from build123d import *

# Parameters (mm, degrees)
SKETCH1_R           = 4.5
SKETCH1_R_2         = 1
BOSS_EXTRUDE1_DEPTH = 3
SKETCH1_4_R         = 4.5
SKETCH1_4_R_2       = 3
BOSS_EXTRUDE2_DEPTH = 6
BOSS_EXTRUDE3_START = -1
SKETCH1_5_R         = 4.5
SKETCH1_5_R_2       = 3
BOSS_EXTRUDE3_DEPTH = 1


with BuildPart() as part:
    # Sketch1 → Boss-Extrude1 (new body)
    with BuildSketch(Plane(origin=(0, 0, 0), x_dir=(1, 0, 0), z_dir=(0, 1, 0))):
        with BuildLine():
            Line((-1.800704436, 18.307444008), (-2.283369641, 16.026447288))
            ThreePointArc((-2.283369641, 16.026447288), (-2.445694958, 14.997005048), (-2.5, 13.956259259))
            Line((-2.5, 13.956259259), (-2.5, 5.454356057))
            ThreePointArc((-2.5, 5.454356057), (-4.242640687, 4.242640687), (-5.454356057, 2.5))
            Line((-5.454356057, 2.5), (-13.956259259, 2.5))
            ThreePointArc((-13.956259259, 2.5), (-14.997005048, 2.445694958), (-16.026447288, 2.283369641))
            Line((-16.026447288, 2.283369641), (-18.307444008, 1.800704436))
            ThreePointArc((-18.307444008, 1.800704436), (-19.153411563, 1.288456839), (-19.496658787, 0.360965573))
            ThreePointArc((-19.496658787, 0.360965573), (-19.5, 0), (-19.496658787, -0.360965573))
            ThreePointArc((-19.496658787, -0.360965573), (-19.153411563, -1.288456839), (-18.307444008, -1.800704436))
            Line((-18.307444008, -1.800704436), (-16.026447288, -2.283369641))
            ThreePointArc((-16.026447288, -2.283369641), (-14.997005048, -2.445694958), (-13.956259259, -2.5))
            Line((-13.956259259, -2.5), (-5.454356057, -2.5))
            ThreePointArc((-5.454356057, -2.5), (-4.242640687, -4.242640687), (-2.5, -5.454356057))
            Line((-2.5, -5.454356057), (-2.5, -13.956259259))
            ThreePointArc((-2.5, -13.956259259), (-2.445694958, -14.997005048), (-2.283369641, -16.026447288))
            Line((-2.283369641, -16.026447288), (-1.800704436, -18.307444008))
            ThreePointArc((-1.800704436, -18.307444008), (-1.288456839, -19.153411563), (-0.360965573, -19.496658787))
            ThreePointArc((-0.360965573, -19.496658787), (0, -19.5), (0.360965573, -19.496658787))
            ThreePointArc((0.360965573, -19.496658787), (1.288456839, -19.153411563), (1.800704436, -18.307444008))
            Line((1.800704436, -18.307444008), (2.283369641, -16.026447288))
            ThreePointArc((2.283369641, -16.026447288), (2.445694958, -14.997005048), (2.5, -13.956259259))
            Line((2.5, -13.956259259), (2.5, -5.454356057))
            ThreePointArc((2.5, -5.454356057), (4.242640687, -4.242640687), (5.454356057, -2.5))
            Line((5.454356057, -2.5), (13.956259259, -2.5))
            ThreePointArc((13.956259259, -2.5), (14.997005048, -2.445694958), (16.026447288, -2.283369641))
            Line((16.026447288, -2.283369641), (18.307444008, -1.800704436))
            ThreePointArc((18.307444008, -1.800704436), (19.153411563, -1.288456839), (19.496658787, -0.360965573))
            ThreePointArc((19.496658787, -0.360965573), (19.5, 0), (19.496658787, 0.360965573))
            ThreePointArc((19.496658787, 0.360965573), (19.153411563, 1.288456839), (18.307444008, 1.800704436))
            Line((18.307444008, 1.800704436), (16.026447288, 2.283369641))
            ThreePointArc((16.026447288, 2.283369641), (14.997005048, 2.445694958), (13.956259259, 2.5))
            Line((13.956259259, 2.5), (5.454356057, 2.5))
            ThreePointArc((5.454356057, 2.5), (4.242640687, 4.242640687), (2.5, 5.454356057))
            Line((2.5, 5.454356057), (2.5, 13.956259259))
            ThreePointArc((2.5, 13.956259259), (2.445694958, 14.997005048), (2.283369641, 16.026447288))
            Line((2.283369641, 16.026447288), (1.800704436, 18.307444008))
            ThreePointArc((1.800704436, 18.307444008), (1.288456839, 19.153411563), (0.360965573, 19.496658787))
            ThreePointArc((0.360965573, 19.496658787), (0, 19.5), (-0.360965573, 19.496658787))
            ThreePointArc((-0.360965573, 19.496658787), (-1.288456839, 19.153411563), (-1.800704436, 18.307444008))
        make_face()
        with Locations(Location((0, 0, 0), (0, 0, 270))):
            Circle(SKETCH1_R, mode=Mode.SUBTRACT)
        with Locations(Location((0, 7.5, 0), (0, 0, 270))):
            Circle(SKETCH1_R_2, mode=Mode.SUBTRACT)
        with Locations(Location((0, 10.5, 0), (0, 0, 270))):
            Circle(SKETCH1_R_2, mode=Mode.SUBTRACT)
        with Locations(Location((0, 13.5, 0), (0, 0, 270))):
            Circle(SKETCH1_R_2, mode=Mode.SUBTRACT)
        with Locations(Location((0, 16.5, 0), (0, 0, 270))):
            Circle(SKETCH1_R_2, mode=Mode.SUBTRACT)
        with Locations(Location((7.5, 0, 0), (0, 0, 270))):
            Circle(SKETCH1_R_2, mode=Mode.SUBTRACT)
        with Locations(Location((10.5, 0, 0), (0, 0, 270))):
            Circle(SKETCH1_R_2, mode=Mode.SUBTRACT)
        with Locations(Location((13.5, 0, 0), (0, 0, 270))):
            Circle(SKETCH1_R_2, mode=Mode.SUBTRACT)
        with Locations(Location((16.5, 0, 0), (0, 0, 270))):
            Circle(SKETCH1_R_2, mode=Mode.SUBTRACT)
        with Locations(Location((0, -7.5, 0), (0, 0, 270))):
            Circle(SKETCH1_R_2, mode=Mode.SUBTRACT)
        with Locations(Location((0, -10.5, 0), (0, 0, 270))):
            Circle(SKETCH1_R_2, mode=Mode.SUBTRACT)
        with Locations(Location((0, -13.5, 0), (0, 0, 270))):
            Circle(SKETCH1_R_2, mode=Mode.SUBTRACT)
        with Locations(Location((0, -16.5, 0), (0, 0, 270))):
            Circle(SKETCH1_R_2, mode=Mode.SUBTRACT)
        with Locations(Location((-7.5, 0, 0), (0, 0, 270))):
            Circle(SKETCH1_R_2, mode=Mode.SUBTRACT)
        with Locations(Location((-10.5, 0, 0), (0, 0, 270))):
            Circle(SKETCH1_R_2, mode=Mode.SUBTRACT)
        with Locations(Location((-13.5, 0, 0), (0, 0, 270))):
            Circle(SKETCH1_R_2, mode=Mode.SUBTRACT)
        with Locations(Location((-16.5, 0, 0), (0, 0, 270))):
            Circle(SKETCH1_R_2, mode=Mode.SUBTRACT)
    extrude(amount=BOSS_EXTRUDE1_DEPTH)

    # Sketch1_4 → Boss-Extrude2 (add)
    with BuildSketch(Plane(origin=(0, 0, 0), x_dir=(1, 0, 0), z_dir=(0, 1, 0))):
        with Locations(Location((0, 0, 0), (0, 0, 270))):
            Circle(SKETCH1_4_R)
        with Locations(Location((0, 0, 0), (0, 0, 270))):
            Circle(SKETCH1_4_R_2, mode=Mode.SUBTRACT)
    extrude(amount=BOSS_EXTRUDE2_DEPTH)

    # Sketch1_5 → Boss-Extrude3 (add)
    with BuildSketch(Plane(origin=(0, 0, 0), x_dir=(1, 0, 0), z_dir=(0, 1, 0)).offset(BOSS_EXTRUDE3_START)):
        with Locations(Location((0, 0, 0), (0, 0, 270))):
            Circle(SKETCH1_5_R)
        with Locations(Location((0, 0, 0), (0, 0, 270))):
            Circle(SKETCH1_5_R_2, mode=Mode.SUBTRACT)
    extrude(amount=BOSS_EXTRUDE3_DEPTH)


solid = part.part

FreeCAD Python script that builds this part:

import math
import FreeCAD as App
import Part
import Sketcher

V = App.Vector

doc = App.newDocument("Part")
params = doc.addObject("Spreadsheet::Sheet", "Params")
for row, (alias, value) in enumerate([
    ("sketch1_diameter", "2 mm"),
    ("sketch1_diameter2", "9 mm"),
    ("sketch1_radius", "10 mm"),
    ("sketch1_radius2", "6 mm"),
    ("sketch1_radius3", "1.5 mm"),
    ("pad1_length", "3 mm"),
    ("sketch2_diameter", "9 mm"),
    ("sketch2_diameter2", "6 mm"),
    ("pad2_length", "6 mm"),
    ("sketch3_diameter", "9 mm"),
    ("sketch3_diameter2", "6 mm"),
    ("pad3_length", "1 mm"),
], start=1):
    params.set(f"A{row}", alias)
    params.set(f"B{row}", "=" + value)
    params.setAlias(f"B{row}", alias)

body = doc.addObject("PartDesign::Body", "Body")

# Sketch on XZ plane
sketch1 = body.newObject("Sketcher::SketchObject", "Sketch")
sketch1.AttachmentSupport = (doc.getObject("XZ_Plane"), [""])
sketch1.MapMode = "FlatFace"
sketch1.addGeometry([
    Part.LineSegment(V(-1.800704, -18.307444, 0), V(-2.28337, -16.026447, 0)),  # 0
    Part.ArcOfCircle(Part.Circle(V(7.5, -13.956259, 0), V(0, 0, 1), 10), math.radians(-180), math.radians(-168.052297)),  # 1
    Part.LineSegment(V(-2.5, -13.956259, 0), V(-2.5, -5.454356, 0)),  # 2
    Part.ArcOfCircle(Part.Circle(V(0, 0, 0), V(0, 0, 1), 6), math.radians(-155.375682), math.radians(-114.624318)),  # 3
    Part.LineSegment(V(-5.454356, -2.5, 0), V(-13.956259, -2.5, 0)),  # 4
    Part.ArcOfCircle(Part.Circle(V(-13.956259, 7.5, 0), V(0, 0, 1), 10), math.radians(-101.947703), math.radians(-90)),  # 5
    Part.LineSegment(V(-16.026447, -2.28337, 0), V(-18.307444, -1.800704, 0)),  # 6
    Part.ArcOfCircle(Part.Circle(V(-17.996916, -0.333199, 0), V(0, 0, 1), 1.5), math.radians(-178.939334), math.radians(-101.947703)),  # 7
    Part.ArcOfCircle(Part.Circle(V(0, 0, 0), V(0, 0, 1), 19.5), math.radians(178.939334), math.radians(181.060666)),  # 8
    Part.ArcOfCircle(Part.Circle(V(-17.996916, 0.333199, 0), V(0, 0, 1), 1.5), math.radians(101.947703), math.radians(178.939334)),  # 9
    Part.LineSegment(V(-18.307444, 1.800704, 0), V(-16.026447, 2.28337, 0)),  # 10
    Part.ArcOfCircle(Part.Circle(V(-13.956259, -7.5, 0), V(0, 0, 1), 10), math.radians(90), math.radians(101.947703)),  # 11
    Part.LineSegment(V(-13.956259, 2.5, 0), V(-5.454356, 2.5, 0)),  # 12
    Part.ArcOfCircle(Part.Circle(V(0, 0, 0), V(0, 0, 1), 6), math.radians(114.624318), math.radians(155.375682)),  # 13
    Part.LineSegment(V(-2.5, 5.454356, 0), V(-2.5, 13.956259, 0)),  # 14
    Part.ArcOfCircle(Part.Circle(V(7.5, 13.956259, 0), V(0, 0, 1), 10), math.radians(168.052297), math.radians(180)),  # 15
    Part.LineSegment(V(-2.28337, 16.026447, 0), V(-1.800704, 18.307444, 0)),  # 16
    Part.ArcOfCircle(Part.Circle(V(-0.333199, 17.996916, 0), V(0, 0, 1), 1.5), math.radians(91.060666), math.radians(168.052297)),  # 17
    Part.ArcOfCircle(Part.Circle(V(0, 0, 0), V(0, 0, 1), 19.5), math.radians(88.939334), math.radians(91.060666)),  # 18
    Part.ArcOfCircle(Part.Circle(V(0.333199, 17.996916, 0), V(0, 0, 1), 1.5), math.radians(11.947703), math.radians(88.939334)),  # 19
    Part.LineSegment(V(1.800704, 18.307444, 0), V(2.28337, 16.026447, 0)),  # 20
    Part.ArcOfCircle(Part.Circle(V(-7.5, 13.956259, 0), V(0, 0, 1), 10), math.radians(0), math.radians(11.947703)),  # 21
    Part.LineSegment(V(2.5, 13.956259, 0), V(2.5, 5.454356, 0)),  # 22
    Part.ArcOfCircle(Part.Circle(V(0, 0, 0), V(0, 0, 1), 6), math.radians(24.624318), math.radians(65.375682)),  # 23
    Part.LineSegment(V(5.454356, 2.5, 0), V(13.956259, 2.5, 0)),  # 24
    Part.ArcOfCircle(Part.Circle(V(13.956259, -7.5, 0), V(0, 0, 1), 10), math.radians(78.052297), math.radians(90)),  # 25
    Part.LineSegment(V(16.026447, 2.28337, 0), V(18.307444, 1.800704, 0)),  # 26
    Part.ArcOfCircle(Part.Circle(V(17.996916, 0.333199, 0), V(0, 0, 1), 1.5), math.radians(1.060666), math.radians(78.052297)),  # 27
    Part.ArcOfCircle(Part.Circle(V(0, 0, 0), V(0, 0, 1), 19.5), math.radians(-1.060666), math.radians(1.060666)),  # 28
    Part.ArcOfCircle(Part.Circle(V(17.996916, -0.333199, 0), V(0, 0, 1), 1.5), math.radians(-78.052297), math.radians(-1.060666)),  # 29
    Part.LineSegment(V(18.307444, -1.800704, 0), V(16.026447, -2.28337, 0)),  # 30
    Part.ArcOfCircle(Part.Circle(V(13.956259, 7.5, 0), V(0, 0, 1), 10), math.radians(-90), math.radians(-78.052297)),  # 31
    Part.LineSegment(V(13.956259, -2.5, 0), V(5.454356, -2.5, 0)),  # 32
    Part.ArcOfCircle(Part.Circle(V(0, 0, 0), V(0, 0, 1), 6), math.radians(-65.375682), math.radians(-24.624318)),  # 33
    Part.LineSegment(V(2.5, -5.454356, 0), V(2.5, -13.956259, 0)),  # 34
    Part.ArcOfCircle(Part.Circle(V(-7.5, -13.956259, 0), V(0, 0, 1), 10), math.radians(-11.947703), math.radians(0)),  # 35
    Part.LineSegment(V(2.28337, -16.026447, 0), V(1.800704, -18.307444, 0)),  # 36
    Part.ArcOfCircle(Part.Circle(V(0.333199, -17.996916, 0), V(0, 0, 1), 1.5), math.radians(-88.939334), math.radians(-11.947703)),  # 37
    Part.ArcOfCircle(Part.Circle(V(0, 0, 0), V(0, 0, 1), 19.5), math.radians(-91.060666), math.radians(-88.939334)),  # 38
    Part.ArcOfCircle(Part.Circle(V(-0.333199, -17.996916, 0), V(0, 0, 1), 1.5), math.radians(-168.052297), math.radians(-91.060666)),  # 39
    Part.Circle(V(0, 16.5, 0), V(0, 0, 1), 1),  # 40
    Part.Circle(V(0, 13.5, 0), V(0, 0, 1), 1),  # 41
    Part.Circle(V(0, 10.5, 0), V(0, 0, 1), 1),  # 42
    Part.Circle(V(0, 7.5, 0), V(0, 0, 1), 1),  # 43
    Part.Circle(V(-16.5, 0, 0), V(0, 0, 1), 1),  # 44
    Part.Circle(V(-13.5, 0, 0), V(0, 0, 1), 1),  # 45
    Part.Circle(V(-10.5, 0, 0), V(0, 0, 1), 1),  # 46
    Part.Circle(V(-7.5, 0, 0), V(0, 0, 1), 1),  # 47
    Part.Circle(V(0, 0, 0), V(0, 0, 1), 4.5),  # 48
    Part.Circle(V(7.5, 0, 0), V(0, 0, 1), 1),  # 49
    Part.Circle(V(0, -7.5, 0), V(0, 0, 1), 1),  # 50
    Part.Circle(V(10.5, 0, 0), V(0, 0, 1), 1),  # 51
    Part.Circle(V(13.5, 0, 0), V(0, 0, 1), 1),  # 52
    Part.Circle(V(16.5, 0, 0), V(0, 0, 1), 1),  # 53
    Part.Circle(V(0, -10.5, 0), V(0, 0, 1), 1),  # 54
    Part.Circle(V(0, -13.5, 0), V(0, 0, 1), 1),  # 55
    Part.Circle(V(0, -16.5, 0), V(0, 0, 1), 1),  # 56
], False)
sketch1.addConstraint([
    Sketcher.Constraint("Tangent", 0, 2, 1, 2),
    Sketcher.Constraint("Tangent", 1, 1, 2, 1),
    Sketcher.Constraint("Coincident", 2, 2, 3, 2),
    Sketcher.Constraint("Coincident", 3, 1, 4, 1),
    Sketcher.Constraint("Tangent", 4, 2, 5, 2),
    Sketcher.Constraint("Tangent", 5, 1, 6, 1),
    Sketcher.Constraint("Tangent", 6, 2, 7, 2),
    Sketcher.Constraint("Tangent", 7, 1, 8, 2),
    Sketcher.Constraint("Tangent", 8, 1, 9, 2),
    Sketcher.Constraint("Tangent", 9, 1, 10, 1),
    Sketcher.Constraint("Tangent", 10, 2, 11, 2),
    Sketcher.Constraint("Tangent", 11, 1, 12, 1),
    Sketcher.Constraint("Coincident", 12, 2, 13, 2),
    Sketcher.Constraint("Coincident", 13, 1, 14, 1),
    Sketcher.Constraint("Tangent", 14, 2, 15, 2),
    Sketcher.Constraint("Tangent", 15, 1, 16, 1),
    Sketcher.Constraint("Tangent", 16, 2, 17, 2),
    Sketcher.Constraint("Tangent", 17, 1, 18, 2),
    Sketcher.Constraint("Tangent", 18, 1, 19, 2),
    Sketcher.Constraint("Tangent", 19, 1, 20, 1),
    Sketcher.Constraint("Tangent", 20, 2, 21, 2),
    Sketcher.Constraint("Tangent", 21, 1, 22, 1),
    Sketcher.Constraint("Coincident", 22, 2, 23, 2),
    Sketcher.Constraint("Coincident", 23, 1, 24, 1),
    Sketcher.Constraint("Tangent", 24, 2, 25, 2),
    Sketcher.Constraint("Tangent", 25, 1, 26, 1),
    Sketcher.Constraint("Tangent", 26, 2, 27, 2),
    Sketcher.Constraint("Tangent", 27, 1, 28, 2),
    Sketcher.Constraint("Tangent", 28, 1, 29, 2),
    Sketcher.Constraint("Tangent", 29, 1, 30, 1),
    Sketcher.Constraint("Tangent", 30, 2, 31, 2),
    Sketcher.Constraint("Tangent", 31, 1, 32, 1),
    Sketcher.Constraint("Coincident", 32, 2, 33, 2),
    Sketcher.Constraint("Coincident", 33, 1, 34, 1),
    Sketcher.Constraint("Tangent", 34, 2, 35, 2),
    Sketcher.Constraint("Tangent", 35, 1, 36, 1),
    Sketcher.Constraint("Tangent", 36, 2, 37, 2),
    Sketcher.Constraint("Tangent", 37, 1, 38, 2),
    Sketcher.Constraint("Tangent", 38, 1, 39, 2),
    Sketcher.Constraint("Tangent", 39, 1, 0, 1),
    Sketcher.Constraint("Vertical", 2),
    Sketcher.Constraint("Horizontal", 4),
    Sketcher.Constraint("Horizontal", 12),
    Sketcher.Constraint("Vertical", 14),
    Sketcher.Constraint("Vertical", 22),
    Sketcher.Constraint("Horizontal", 24),
    Sketcher.Constraint("Horizontal", 32),
    Sketcher.Constraint("Vertical", 34),
    Sketcher.Constraint("Coincident", 3, 3, -1, 1),
    Sketcher.Constraint("Coincident", 8, 3, -1, 1),
    Sketcher.Constraint("Coincident", 13, 3, -1, 1),
    Sketcher.Constraint("Coincident", 18, 3, -1, 1),
    Sketcher.Constraint("Coincident", 23, 3, -1, 1),
    Sketcher.Constraint("Coincident", 28, 3, -1, 1),
    Sketcher.Constraint("Coincident", 33, 3, -1, 1),
    Sketcher.Constraint("Coincident", 38, 3, -1, 1),
    Sketcher.Constraint("Coincident", 48, 3, -1, 1),
    Sketcher.Constraint("Equal", 1, 5),
    Sketcher.Constraint("Equal", 7, 9),
    Sketcher.Constraint("Equal", 5, 11),
    Sketcher.Constraint("Equal", 3, 13),
    Sketcher.Constraint("Equal", 11, 15),
    Sketcher.Constraint("Equal", 9, 17),
    Sketcher.Constraint("Equal", 8, 18),
    Sketcher.Constraint("Equal", 17, 19),
    Sketcher.Constraint("Equal", 15, 21),
    Sketcher.Constraint("Equal", 13, 23),
    Sketcher.Constraint("Equal", 21, 25),
    Sketcher.Constraint("Equal", 19, 27),
    Sketcher.Constraint("Equal", 18, 28),
    Sketcher.Constraint("Equal", 27, 29),
    Sketcher.Constraint("Equal", 25, 31),
    Sketcher.Constraint("Equal", 23, 33),
    Sketcher.Constraint("Equal", 31, 35),
    Sketcher.Constraint("Equal", 29, 37),
    Sketcher.Constraint("Equal", 28, 38),
    Sketcher.Constraint("Equal", 37, 39),
    Sketcher.Constraint("Equal", 40, 41),
    Sketcher.Constraint("Equal", 41, 42),
    Sketcher.Constraint("Equal", 42, 43),
    Sketcher.Constraint("Equal", 43, 44),
    Sketcher.Constraint("Equal", 44, 45),
    Sketcher.Constraint("Equal", 45, 46),
    Sketcher.Constraint("Equal", 46, 47),
    Sketcher.Constraint("Equal", 47, 49),
    Sketcher.Constraint("Equal", 49, 50),
    Sketcher.Constraint("Equal", 50, 51),
    Sketcher.Constraint("Equal", 51, 52),
    Sketcher.Constraint("Equal", 52, 53),
    Sketcher.Constraint("Equal", 53, 54),
    Sketcher.Constraint("Equal", 54, 55),
    Sketcher.Constraint("Equal", 55, 56),
    Sketcher.Constraint("Symmetric", 1, 3, 21, 3, -1, 1),
    Sketcher.Constraint("Symmetric", 5, 3, 25, 3, -1, 1),
    Sketcher.Constraint("Symmetric", 11, 3, 31, 3, -1, 1),
    Sketcher.Constraint("Symmetric", 15, 3, 35, 3, -1, 1),
    Sketcher.Constraint("Symmetric", 47, 3, 49, 3, -1, 1),
    Sketcher.Constraint("Symmetric", 43, 3, 50, 3, -1, 1),
    Sketcher.Constraint("Symmetric", 46, 3, 51, 3, -1, 1),
    Sketcher.Constraint("Symmetric", 45, 3, 52, 3, -1, 1),
    Sketcher.Constraint("Symmetric", 44, 3, 53, 3, -1, 1),
    Sketcher.Constraint("Symmetric", 42, 3, 54, 3, -1, 1),
    Sketcher.Constraint("Symmetric", 41, 3, 55, 3, -1, 1),
    Sketcher.Constraint("Symmetric", 40, 3, 56, 3, -1, 1),
    Sketcher.Constraint("Symmetric", 15, 3, 21, 3, -2),
    Sketcher.Constraint("Symmetric", 11, 3, 25, 3, -2),
    Sketcher.Constraint("PointOnObject", 40, 3, -2),
    Sketcher.Constraint("PointOnObject", 41, 3, -2),
    Sketcher.Constraint("PointOnObject", 42, 3, -2),
    Sketcher.Constraint("PointOnObject", 43, 3, -2),
    Sketcher.Constraint("PointOnObject", 44, 3, -1),
    Sketcher.Constraint("PointOnObject", 45, 3, -1),
    Sketcher.Constraint("PointOnObject", 46, 3, -1),
    Sketcher.Constraint("PointOnObject", 47, 3, -1),
    Sketcher.Constraint("Perpendicular", 0, 10),
    Sketcher.Constraint("Perpendicular", 6, 16),
    Sketcher.Constraint("Perpendicular", 10, 20),
    Sketcher.Constraint("Perpendicular", 16, 26),
    Sketcher.Constraint("Perpendicular", 20, 30),
    Sketcher.Constraint("Perpendicular", 26, 36),
    Sketcher.Constraint("Horizontal", 17, 3, 19, 3),
    Sketcher.Constraint("Horizontal", 31, 3, 43, 3),
    Sketcher.Constraint("Vertical", 35, 3, 47, 3),
    Sketcher.Constraint("Equal", 32, 2),
    Sketcher.Constraint("Equal", 0, 6),
    Sketcher.Constraint("Diameter", 40, 2.0),
    Sketcher.Constraint("Diameter", 48, 9.0),
    Sketcher.Constraint("Radius", 1, 10.0),
    Sketcher.Constraint("Radius", 3, 6.0),
    Sketcher.Constraint("Radius", 7, 1.5),
    Sketcher.Constraint("Radius", 8, 19.5),
    Sketcher.Constraint("DistanceX", -1, 1, 1, 3, 7.5),
    Sketcher.Constraint("DistanceY", -1, 1, 40, 3, 16.5),
    Sketcher.Constraint("DistanceY", -1, 1, 41, 3, 13.5),
    Sketcher.Constraint("DistanceY", -1, 1, 42, 3, 10.5),
    Sketcher.Constraint("DistanceX", 44, 3, -1, 1, 16.5),
    Sketcher.Constraint("DistanceX", 45, 3, -1, 1, 13.5),
    Sketcher.Constraint("DistanceX", 46, 3, -1, 1, 10.5),
    Sketcher.Constraint("DistanceY", 7, 3, -1, 1, 0.333199),
    Sketcher.Constraint("DistanceX", 4, 2, 4, 1, 8.501903),
])
sketch1.setExpression("Constraints[125]", "Params.sketch1_diameter")
sketch1.setExpression("Constraints[126]", "Params.sketch1_diameter2")
sketch1.setExpression("Constraints[127]", "Params.sketch1_radius")
sketch1.setExpression("Constraints[128]", "Params.sketch1_radius2")
sketch1.setExpression("Constraints[129]", "Params.sketch1_radius3")
pad1 = body.newObject("PartDesign::Pad", "Pad")
pad1.Profile = sketch1
pad1.setExpression("Length", "Params.pad1_length")
pad1.Reversed = True

# Sketch on XZ plane
sketch2 = body.newObject("Sketcher::SketchObject", "Sketch001")
sketch2.AttachmentSupport = (doc.getObject("XZ_Plane"), [""])
sketch2.MapMode = "FlatFace"
sketch2.addGeometry([
    Part.Circle(V(0, 0, 0), V(0, 0, 1), 4.5),
    Part.Circle(V(0, 0, 0), V(0, 0, 1), 3),
], False)
sketch2.addConstraint([
    Sketcher.Constraint("Coincident", 0, 3, -1, 1),
    Sketcher.Constraint("Coincident", 1, 3, -1, 1),
    Sketcher.Constraint("Diameter", 0, 9.0),
    Sketcher.Constraint("Diameter", 1, 6.0),
])
sketch2.setExpression("Constraints[2]", "Params.sketch2_diameter")
sketch2.setExpression("Constraints[3]", "Params.sketch2_diameter2")
pad2 = body.newObject("PartDesign::Pad", "Pad001")
pad2.Profile = sketch2
pad2.setExpression("Length", "Params.pad2_length")
pad2.Reversed = True

# Sketch on XZ plane
sketch3 = body.newObject("Sketcher::SketchObject", "Sketch002")
sketch3.AttachmentSupport = (doc.getObject("XZ_Plane"), [""])
sketch3.MapMode = "FlatFace"
sketch3.AttachmentOffset = App.Placement(V(0, 0, 1), App.Rotation())
sketch3.addGeometry([
    Part.Circle(V(0, 0, 0), V(0, 0, 1), 4.5),
    Part.Circle(V(0, 0, 0), V(0, 0, 1), 3),
], False)
sketch3.addConstraint([
    Sketcher.Constraint("Coincident", 0, 3, -1, 1),
    Sketcher.Constraint("Coincident", 1, 3, -1, 1),
    Sketcher.Constraint("Diameter", 0, 9.0),
    Sketcher.Constraint("Diameter", 1, 6.0),
])
sketch3.setExpression("Constraints[2]", "Params.sketch3_diameter")
sketch3.setExpression("Constraints[3]", "Params.sketch3_diameter2")
pad3 = body.newObject("PartDesign::Pad", "Pad002")
pad3.Profile = sketch3
pad3.setExpression("Length", "Params.pad3_length")
pad3.Reversed = True

doc.recompute()
